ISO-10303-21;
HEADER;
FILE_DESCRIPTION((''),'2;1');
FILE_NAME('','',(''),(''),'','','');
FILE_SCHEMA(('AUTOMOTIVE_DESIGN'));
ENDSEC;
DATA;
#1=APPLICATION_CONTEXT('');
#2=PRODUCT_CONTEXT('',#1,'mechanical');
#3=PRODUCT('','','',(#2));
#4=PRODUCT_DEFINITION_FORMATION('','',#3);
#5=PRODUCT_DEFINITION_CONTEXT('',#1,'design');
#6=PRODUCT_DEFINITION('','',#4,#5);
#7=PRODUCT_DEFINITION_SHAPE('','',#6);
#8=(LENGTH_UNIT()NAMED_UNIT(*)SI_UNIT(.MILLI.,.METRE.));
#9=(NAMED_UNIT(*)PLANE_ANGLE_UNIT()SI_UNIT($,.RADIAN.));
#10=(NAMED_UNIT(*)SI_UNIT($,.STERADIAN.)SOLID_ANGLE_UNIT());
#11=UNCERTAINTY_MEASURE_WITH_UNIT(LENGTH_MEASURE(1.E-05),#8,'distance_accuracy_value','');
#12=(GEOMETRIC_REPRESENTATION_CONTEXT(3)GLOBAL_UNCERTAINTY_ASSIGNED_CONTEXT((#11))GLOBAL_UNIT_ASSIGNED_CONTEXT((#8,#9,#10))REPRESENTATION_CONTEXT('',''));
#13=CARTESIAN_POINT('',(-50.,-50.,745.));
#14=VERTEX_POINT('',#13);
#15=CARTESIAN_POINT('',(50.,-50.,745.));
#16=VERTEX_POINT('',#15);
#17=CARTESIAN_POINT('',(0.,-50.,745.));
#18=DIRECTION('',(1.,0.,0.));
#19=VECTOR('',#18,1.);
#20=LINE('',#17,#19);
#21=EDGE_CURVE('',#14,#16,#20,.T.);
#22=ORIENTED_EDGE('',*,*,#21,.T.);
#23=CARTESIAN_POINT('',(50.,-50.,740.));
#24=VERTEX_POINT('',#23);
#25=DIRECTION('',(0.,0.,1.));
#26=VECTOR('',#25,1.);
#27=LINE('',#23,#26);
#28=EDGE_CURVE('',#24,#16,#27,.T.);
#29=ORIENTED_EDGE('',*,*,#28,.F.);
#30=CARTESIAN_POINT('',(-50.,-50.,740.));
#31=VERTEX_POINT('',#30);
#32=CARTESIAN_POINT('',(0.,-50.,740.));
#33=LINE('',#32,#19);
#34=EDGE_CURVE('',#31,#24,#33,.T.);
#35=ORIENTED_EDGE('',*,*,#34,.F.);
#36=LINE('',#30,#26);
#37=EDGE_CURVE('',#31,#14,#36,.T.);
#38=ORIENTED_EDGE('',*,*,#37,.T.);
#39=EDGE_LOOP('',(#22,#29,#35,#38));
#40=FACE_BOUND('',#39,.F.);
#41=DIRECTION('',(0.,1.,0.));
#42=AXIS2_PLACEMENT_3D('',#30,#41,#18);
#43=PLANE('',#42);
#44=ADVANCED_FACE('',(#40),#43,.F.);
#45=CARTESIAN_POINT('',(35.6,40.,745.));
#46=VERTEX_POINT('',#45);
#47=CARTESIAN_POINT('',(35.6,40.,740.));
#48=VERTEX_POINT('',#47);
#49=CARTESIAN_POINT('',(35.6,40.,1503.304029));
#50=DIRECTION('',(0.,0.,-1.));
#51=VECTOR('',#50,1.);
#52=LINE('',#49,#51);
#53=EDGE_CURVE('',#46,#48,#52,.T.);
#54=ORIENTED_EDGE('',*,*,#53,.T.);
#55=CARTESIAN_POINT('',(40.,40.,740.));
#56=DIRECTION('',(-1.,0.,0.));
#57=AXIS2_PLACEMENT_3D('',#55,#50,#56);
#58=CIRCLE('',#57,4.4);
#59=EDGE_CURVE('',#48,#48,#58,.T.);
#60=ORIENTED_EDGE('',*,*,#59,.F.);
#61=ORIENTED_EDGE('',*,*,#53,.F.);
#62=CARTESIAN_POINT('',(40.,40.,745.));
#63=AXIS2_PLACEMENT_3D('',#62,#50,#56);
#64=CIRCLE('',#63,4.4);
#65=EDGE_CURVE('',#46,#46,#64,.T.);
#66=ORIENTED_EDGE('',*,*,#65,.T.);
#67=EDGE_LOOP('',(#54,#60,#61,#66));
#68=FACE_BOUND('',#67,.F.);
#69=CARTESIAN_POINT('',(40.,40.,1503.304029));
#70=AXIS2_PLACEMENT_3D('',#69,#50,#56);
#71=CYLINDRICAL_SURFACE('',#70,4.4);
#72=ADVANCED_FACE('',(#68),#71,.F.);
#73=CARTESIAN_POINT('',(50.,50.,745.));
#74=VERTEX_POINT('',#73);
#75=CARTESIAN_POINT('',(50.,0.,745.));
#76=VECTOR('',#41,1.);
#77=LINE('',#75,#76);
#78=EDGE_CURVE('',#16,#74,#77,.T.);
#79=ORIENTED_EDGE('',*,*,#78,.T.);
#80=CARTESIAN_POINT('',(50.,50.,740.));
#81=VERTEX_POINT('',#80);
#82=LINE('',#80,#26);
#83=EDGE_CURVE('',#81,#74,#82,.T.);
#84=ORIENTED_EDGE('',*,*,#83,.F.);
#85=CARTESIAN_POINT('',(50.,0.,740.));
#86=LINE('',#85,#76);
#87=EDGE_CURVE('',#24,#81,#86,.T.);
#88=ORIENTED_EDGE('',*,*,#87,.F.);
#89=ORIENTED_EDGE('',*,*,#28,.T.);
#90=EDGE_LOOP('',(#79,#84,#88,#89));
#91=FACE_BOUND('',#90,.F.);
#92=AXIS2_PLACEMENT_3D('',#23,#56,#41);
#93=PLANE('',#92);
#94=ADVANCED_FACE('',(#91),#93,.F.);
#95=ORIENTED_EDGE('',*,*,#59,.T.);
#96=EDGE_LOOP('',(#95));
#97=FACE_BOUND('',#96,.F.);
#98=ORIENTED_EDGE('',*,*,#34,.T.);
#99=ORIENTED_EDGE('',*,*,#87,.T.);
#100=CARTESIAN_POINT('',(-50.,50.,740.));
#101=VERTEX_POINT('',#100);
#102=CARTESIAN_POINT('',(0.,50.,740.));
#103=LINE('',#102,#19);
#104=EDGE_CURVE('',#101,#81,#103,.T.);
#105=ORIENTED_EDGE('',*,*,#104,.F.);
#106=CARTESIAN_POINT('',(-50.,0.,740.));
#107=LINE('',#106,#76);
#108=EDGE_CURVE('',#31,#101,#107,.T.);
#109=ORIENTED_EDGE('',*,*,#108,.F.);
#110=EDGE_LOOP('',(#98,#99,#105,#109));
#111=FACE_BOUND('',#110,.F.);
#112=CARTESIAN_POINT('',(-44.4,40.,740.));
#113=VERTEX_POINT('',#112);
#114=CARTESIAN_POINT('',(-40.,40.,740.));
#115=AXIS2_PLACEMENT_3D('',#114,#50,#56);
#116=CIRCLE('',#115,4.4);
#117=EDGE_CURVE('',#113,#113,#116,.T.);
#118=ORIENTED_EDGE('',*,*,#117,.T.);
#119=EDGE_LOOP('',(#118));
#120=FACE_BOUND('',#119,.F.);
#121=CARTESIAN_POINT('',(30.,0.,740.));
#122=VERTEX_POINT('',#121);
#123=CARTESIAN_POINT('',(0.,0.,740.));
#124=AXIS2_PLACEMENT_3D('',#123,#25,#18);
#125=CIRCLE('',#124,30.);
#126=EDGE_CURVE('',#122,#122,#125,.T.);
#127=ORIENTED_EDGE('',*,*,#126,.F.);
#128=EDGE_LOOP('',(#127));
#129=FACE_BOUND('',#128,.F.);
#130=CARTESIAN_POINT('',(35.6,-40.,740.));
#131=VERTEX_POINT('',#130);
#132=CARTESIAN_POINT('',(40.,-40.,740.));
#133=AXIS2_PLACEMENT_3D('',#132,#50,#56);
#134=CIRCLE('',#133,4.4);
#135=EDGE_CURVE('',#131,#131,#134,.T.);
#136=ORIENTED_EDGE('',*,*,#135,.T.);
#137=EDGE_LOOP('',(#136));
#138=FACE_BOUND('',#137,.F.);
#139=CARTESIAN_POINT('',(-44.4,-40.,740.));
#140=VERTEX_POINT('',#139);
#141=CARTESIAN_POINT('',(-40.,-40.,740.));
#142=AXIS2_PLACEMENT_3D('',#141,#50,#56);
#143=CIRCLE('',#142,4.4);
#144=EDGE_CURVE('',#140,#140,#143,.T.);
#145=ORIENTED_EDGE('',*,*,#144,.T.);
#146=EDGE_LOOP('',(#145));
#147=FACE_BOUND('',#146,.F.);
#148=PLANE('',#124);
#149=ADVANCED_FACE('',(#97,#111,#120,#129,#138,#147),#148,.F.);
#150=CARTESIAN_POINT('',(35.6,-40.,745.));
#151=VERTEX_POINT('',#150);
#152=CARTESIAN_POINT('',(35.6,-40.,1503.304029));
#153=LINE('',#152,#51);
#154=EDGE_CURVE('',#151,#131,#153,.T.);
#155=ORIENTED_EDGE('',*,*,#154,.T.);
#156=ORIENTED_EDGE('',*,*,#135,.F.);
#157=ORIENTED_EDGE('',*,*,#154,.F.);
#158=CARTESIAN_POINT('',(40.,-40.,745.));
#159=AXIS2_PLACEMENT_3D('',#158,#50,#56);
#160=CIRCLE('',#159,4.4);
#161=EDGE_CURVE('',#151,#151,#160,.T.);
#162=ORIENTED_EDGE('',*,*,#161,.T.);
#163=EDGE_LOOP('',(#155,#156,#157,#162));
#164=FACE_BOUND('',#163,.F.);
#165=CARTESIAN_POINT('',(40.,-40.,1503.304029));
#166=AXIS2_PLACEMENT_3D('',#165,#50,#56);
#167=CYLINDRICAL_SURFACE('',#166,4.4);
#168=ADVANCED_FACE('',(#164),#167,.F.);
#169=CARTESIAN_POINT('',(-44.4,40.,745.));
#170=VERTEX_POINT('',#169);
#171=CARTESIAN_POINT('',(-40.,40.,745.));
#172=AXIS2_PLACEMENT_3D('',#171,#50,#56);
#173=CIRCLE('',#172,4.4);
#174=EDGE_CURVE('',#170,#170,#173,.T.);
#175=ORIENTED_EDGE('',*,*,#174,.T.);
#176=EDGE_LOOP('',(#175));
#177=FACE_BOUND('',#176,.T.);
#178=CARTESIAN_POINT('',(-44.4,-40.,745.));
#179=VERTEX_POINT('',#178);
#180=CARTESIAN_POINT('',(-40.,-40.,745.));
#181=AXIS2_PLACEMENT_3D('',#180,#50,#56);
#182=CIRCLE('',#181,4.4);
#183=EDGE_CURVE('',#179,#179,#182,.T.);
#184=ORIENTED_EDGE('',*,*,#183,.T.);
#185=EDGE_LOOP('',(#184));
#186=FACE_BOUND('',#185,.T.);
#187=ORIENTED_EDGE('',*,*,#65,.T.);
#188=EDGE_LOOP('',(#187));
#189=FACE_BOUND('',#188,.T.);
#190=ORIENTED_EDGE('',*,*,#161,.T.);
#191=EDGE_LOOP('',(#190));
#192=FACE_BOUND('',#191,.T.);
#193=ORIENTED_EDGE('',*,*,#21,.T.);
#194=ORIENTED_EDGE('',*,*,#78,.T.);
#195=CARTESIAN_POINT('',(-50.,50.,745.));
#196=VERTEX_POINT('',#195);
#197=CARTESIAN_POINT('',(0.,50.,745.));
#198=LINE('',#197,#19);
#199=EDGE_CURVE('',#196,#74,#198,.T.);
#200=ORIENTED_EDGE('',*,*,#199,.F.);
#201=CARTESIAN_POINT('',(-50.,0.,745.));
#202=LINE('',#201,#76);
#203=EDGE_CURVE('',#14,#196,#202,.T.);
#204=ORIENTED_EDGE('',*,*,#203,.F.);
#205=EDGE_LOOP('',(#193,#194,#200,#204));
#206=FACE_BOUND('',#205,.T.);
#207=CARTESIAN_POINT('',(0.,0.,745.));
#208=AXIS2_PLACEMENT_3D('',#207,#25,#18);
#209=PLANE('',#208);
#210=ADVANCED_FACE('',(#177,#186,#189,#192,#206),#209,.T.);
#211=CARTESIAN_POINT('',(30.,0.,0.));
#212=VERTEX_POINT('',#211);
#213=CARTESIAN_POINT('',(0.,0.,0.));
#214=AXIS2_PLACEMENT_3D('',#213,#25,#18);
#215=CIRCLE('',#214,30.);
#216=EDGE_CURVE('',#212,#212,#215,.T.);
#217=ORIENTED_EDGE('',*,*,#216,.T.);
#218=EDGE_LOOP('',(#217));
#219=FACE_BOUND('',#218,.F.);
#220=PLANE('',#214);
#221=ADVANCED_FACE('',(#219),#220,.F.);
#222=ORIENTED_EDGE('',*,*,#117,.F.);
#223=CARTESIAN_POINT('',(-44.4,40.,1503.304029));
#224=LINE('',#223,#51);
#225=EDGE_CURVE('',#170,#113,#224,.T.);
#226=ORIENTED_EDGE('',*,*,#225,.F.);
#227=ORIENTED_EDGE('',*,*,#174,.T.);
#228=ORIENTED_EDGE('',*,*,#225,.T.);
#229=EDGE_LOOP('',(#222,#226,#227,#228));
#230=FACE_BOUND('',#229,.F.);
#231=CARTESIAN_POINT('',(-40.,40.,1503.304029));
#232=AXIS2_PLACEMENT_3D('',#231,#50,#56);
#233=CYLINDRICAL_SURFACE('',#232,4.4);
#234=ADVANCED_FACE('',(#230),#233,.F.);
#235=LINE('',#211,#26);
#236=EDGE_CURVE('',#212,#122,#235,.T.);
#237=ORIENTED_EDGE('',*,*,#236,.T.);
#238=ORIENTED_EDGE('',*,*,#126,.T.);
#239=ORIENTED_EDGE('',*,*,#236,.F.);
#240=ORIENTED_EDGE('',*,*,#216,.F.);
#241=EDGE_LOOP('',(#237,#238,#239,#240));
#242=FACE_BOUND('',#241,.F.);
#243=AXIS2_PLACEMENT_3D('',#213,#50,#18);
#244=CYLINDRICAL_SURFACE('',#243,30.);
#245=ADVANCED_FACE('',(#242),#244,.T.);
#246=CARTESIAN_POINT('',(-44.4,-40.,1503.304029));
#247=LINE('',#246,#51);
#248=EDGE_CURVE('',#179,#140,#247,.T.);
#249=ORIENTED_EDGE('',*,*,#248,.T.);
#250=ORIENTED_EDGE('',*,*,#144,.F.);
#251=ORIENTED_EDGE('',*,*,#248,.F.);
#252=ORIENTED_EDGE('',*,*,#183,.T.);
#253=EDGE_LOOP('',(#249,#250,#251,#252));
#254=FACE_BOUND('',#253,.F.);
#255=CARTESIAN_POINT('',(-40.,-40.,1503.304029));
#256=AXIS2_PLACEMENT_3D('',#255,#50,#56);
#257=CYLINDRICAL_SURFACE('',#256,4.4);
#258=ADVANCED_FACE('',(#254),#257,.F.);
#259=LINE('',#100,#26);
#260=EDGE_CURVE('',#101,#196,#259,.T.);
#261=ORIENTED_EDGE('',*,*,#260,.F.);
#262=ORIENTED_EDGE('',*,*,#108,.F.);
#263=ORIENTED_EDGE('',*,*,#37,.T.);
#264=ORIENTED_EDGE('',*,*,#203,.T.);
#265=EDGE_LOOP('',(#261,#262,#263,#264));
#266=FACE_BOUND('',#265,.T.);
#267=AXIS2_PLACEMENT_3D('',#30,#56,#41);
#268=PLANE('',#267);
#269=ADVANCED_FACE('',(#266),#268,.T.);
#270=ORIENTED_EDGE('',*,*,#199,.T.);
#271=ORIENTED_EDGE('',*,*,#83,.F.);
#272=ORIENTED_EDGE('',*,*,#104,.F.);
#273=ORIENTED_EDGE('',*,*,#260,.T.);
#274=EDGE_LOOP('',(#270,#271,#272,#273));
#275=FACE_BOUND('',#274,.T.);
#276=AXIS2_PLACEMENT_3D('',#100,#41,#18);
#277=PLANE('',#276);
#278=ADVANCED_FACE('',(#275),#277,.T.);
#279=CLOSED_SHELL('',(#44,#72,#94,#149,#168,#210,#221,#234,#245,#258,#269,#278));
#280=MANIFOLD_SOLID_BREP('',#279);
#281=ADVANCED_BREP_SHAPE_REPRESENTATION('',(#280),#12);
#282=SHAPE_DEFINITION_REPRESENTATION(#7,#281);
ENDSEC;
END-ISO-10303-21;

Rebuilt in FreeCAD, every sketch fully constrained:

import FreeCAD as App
import Part
import Sketcher
from FreeCAD import Vector

doc = App.newDocument("Part")
params = doc.addObject("Spreadsheet::Sheet", "Params")
for row, (alias, value) in enumerate([
    ("sketch1_diameter", "60 mm"),
    ("pad1_length", "740 mm"),
    ("sketch2_width", "100 mm"),
    ("pad2_length", "5 mm"),
    ("sketch3_diameter", "8.8 mm"),
    ("hole_diameter", "8.8 mm"),
], start=1):
    params.set(f"A{row}", alias)
    params.set(f"B{row}", "=" + value)
    params.setAlias(f"B{row}", alias)

body = doc.addObject("PartDesign::Body", "Body")

sketch1 = body.newObject("Sketcher::SketchObject", "Sketch")
sketch1.AttachmentSupport = (doc.getObject("XY_Plane"), [""])
sketch1.MapMode = "FlatFace"
sketch1.addGeometry(Part.Circle(Vector(0, 0, 0), Vector(0, 0, 1), 30), False)
sketch1.addConstraint(Sketcher.Constraint("Coincident", 0, 3, -1, 1))
sketch1.addConstraint(Sketcher.Constraint("Diameter", 0, 60.0))
sketch1.setExpression("Constraints[1]", "Params.sketch1_diameter")
pad1 = body.newObject("PartDesign::Pad", "Pad")
pad1.Profile = sketch1
pad1.setExpression("Length", "Params.pad1_length")

sketch2 = body.newObject("Sketcher::SketchObject", "Sketch001")
sketch2.AttachmentSupport = (doc.getObject("XY_Plane"), [""])
sketch2.MapMode = "FlatFace"
sketch2.AttachmentOffset = App.Placement(Vector(0, 0, 740), App.Rotation())
sketch2.addGeometry(Part.LineSegment(Vector(-50, 50, 0), Vector(-50, -50, 0)), False)
sketch2.addGeometry(Part.LineSegment(Vector(-50, -50, 0), Vector(50, -50, 0)), False)
sketch2.addGeometry(Part.LineSegment(Vector(50, -50, 0), Vector(50, 50, 0)), False)
sketch2.addGeometry(Part.LineSegment(Vector(50, 50, 0), Vector(-50, 50, 0)), False)
sketch2.addConstraint(Sketcher.Constraint("Coincident", 0, 2, 1, 1))
sketch2.addConstraint(Sketcher.Constraint("Coincident", 1, 2, 2, 1))
sketch2.addConstraint(Sketcher.Constraint("Coincident", 2, 2, 3, 1))
sketch2.addConstraint(Sketcher.Constraint("Coincident", 3, 2, 0, 1))
sketch2.addConstraint(Sketcher.Constraint("Vertical", 0))
sketch2.addConstraint(Sketcher.Constraint("Horizontal", 1))
sketch2.addConstraint(Sketcher.Constraint("Vertical", 2))
sketch2.addConstraint(Sketcher.Constraint("Horizontal", 3))
sketch2.addConstraint(Sketcher.Constraint("Symmetric", 0, 2, 2, 2, -1, 1))
sketch2.addConstraint(Sketcher.Constraint("Equal", 3, 0))
sketch2.addConstraint(Sketcher.Constraint("DistanceX", 1, 1, 1, 2, 100.0))
sketch2.setExpression("Constraints[10]", "Params.sketch2_width")
pad2 = body.newObject("PartDesign::Pad", "Pad001")
pad2.Profile = sketch2
pad2.setExpression("Length", "Params.pad2_length")

sketch3 = body.newObject("Sketcher::SketchObject", "Sketch002")
sketch3.AttachmentSupport = (doc.getObject("XY_Plane"), [""])
sketch3.MapMode = "FlatFace"
sketch3.AttachmentOffset = App.Placement(Vector(0, 0, 745), App.Rotation())
sketch3.addGeometry(Part.Circle(Vector(-40, 40, 0), Vector(0, 0, 1), 4.4), False)
sketch3.addGeometry(Part.Circle(Vector(40, 40, 0), Vector(0, 0, 1), 4.4), False)
sketch3.addGeometry(Part.Circle(Vector(40, -40, 0), Vector(0, 0, 1), 4.4), False)
sketch3.addGeometry(Part.Circle(Vector(-40, -40, 0), Vector(0, 0, 1), 4.4), False)
sketch3.addConstraint(Sketcher.Constraint("Equal", 0, 1))
sketch3.addConstraint(Sketcher.Constraint("Equal", 1, 2))
sketch3.addConstraint(Sketcher.Constraint("Equal", 2, 3))
sketch3.addConstraint(Sketcher.Constraint("Symmetric", 0, 3, 2, 3, -1, 1))
sketch3.addConstraint(Sketcher.Constraint("Symmetric", 1, 3, 3, 3, -1, 1))
sketch3.addConstraint(Sketcher.Constraint("Symmetric", 0, 3, 1, 3, -2))
sketch3.addConstraint(Sketcher.Constraint("Diameter", 0, 8.8))
sketch3.addConstraint(Sketcher.Constraint("DistanceX", 0, 3, -1, 1, 40.0))
sketch3.addConstraint(Sketcher.Constraint("DistanceY", -1, 1, 0, 3, 40.0))
sketch3.setExpression("Constraints[6]", "Params.sketch3_diameter")
doc.recompute()
hole = body.newObject("PartDesign::Hole", "Hole")
hole.Profile = sketch3
hole.ThreadType = "None"
hole.setExpression("Diameter", "Params.hole_diameter")
hole.DepthType = "ThroughAll"

doc.recompute()
